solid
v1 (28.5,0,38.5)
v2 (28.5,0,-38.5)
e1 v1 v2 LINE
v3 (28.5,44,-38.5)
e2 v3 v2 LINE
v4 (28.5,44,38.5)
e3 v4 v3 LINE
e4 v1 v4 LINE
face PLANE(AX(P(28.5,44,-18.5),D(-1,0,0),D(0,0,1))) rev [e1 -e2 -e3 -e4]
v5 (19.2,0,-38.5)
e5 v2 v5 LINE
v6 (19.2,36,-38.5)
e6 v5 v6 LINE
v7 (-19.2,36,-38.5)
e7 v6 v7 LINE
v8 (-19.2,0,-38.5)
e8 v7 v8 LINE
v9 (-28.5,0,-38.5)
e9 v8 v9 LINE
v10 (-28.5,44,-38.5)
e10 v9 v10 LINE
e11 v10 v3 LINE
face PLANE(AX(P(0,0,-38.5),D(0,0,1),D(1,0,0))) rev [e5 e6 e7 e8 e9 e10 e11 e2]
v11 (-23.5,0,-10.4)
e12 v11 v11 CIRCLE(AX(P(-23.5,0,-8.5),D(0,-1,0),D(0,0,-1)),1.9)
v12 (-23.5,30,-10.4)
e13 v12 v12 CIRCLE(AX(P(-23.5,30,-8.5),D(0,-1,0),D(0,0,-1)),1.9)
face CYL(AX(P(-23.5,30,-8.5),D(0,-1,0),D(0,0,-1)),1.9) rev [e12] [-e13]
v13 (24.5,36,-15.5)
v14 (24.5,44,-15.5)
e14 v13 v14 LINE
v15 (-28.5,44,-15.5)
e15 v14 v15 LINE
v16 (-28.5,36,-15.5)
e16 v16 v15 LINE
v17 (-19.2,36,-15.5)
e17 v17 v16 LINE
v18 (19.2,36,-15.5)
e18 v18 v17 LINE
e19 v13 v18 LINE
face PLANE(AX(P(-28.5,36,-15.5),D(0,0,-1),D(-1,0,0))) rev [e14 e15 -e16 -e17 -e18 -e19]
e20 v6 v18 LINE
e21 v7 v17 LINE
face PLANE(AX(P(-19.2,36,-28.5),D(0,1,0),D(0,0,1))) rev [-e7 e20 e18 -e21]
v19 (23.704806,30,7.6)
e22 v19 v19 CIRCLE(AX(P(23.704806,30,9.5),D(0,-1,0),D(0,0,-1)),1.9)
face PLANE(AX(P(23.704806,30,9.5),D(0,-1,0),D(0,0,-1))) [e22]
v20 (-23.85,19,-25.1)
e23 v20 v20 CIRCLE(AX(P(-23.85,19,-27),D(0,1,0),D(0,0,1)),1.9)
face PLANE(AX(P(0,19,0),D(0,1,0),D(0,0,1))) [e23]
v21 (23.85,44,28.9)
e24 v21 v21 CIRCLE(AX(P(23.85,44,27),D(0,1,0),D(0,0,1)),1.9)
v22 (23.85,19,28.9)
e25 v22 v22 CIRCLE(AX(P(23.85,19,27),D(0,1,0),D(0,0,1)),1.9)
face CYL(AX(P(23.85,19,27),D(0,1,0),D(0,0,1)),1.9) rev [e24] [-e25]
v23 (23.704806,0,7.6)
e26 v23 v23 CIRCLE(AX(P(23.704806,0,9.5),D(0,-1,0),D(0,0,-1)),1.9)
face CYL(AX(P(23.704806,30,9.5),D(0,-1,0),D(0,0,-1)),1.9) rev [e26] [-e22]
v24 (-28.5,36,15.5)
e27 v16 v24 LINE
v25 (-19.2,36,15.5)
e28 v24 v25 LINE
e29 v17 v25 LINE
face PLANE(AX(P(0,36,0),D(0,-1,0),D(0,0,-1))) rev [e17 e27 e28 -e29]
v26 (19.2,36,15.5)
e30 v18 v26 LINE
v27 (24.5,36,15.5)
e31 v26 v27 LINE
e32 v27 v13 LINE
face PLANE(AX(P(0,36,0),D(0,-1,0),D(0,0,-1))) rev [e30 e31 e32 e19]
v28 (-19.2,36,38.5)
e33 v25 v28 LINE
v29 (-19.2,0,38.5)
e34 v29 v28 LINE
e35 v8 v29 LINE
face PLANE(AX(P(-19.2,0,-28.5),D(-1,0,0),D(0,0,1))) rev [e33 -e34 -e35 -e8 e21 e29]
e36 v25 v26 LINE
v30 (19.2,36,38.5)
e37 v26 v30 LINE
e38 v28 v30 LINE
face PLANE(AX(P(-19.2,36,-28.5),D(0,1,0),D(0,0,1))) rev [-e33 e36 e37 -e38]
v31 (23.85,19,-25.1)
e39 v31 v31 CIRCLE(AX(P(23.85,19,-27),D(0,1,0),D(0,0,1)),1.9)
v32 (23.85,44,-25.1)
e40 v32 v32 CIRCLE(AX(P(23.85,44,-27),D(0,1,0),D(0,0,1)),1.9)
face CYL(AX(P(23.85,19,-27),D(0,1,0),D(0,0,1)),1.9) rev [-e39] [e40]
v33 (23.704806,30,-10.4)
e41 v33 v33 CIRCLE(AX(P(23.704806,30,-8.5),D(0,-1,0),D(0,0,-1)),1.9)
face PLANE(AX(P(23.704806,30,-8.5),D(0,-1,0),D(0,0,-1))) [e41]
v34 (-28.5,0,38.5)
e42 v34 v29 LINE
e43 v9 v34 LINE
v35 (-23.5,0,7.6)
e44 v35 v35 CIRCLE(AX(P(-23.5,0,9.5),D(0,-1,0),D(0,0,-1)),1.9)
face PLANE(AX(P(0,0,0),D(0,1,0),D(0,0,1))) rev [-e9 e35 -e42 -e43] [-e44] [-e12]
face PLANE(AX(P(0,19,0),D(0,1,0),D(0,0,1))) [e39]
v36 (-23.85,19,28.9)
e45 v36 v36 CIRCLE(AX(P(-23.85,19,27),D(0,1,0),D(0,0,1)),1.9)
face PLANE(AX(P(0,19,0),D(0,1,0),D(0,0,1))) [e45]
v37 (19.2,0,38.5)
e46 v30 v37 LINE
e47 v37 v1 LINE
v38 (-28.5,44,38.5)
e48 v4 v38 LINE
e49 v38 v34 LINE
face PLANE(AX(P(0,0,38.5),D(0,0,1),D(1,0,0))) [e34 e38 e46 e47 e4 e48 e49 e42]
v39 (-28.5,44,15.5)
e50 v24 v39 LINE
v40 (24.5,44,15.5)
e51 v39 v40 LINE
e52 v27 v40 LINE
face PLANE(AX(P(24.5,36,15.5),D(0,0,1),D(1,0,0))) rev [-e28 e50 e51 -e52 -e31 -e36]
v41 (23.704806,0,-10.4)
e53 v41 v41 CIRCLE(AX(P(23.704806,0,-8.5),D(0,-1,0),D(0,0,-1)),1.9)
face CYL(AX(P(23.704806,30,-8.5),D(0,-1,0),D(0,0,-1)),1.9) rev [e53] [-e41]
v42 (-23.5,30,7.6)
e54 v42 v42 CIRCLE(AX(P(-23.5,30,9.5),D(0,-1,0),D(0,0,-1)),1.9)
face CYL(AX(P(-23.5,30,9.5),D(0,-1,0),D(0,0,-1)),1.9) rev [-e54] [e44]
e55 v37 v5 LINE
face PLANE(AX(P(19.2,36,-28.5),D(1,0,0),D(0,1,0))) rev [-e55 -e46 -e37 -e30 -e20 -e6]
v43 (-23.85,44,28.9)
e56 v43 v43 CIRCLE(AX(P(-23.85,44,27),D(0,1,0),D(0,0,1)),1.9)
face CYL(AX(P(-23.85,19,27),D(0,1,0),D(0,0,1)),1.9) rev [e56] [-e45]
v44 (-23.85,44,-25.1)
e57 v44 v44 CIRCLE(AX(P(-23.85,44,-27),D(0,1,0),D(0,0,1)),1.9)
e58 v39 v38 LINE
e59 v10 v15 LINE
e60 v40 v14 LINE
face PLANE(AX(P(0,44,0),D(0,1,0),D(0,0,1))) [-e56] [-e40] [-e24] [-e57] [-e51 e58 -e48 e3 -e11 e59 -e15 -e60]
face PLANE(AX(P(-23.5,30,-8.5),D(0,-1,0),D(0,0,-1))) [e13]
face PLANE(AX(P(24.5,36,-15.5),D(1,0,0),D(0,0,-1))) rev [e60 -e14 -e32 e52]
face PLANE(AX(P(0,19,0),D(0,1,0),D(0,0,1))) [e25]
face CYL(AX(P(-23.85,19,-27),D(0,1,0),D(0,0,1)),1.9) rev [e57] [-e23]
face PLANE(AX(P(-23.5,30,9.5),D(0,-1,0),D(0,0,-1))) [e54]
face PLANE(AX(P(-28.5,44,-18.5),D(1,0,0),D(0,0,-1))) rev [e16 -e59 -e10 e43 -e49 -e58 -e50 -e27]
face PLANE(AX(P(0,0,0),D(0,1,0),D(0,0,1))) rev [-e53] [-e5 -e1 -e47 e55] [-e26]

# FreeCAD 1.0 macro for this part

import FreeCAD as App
import Part
import Sketcher

V = App.Vector


def add_polygon(sketch, points):
    """Adds a closed chain of lines whose ends are joined by coincident constraints."""
    first, n = sketch.GeometryCount, len(points)
    for a, b in zip(points, points[1:] + points[:1]):
        sketch.addGeometry(Part.LineSegment(App.Vector(*a, 0), App.Vector(*b, 0)), False)
    for i in range(n):
        sketch.addConstraint(Sketcher.Constraint("Coincident", first + i, 2, first + (i + 1) % n, 1))

doc = App.newDocument("Part")
body = doc.addObject("PartDesign::Body", "Body")

# Sketch on XZ plane
sketch1 = doc.addObject("Sketcher::SketchObject", "Sketch")
body.addObject(sketch1)
sketch1.AttachmentSupport = (doc.XZ_Plane, [""])
sketch1.MapMode = "FlatFace"
add_polygon(sketch1, [(-28, -18), (-28, 18), (28, 18), (28, -18)])  # lines 0-3
sketch1.addConstraint(Sketcher.Constraint("Vertical", 0))
sketch1.addConstraint(Sketcher.Constraint("Horizontal", 1))
sketch1.addConstraint(Sketcher.Constraint("Vertical", 2))
sketch1.addConstraint(Sketcher.Constraint("Horizontal", 3))
sketch1.addConstraint(Sketcher.Constraint("Symmetric", 0, 2, 2, 2, -1, 1))
sketch1.addConstraint(Sketcher.Constraint("DistanceX", 1, 1, 1, 2, 57.0))
sketch1.addConstraint(Sketcher.Constraint("DistanceY", 0, 1, 0, 2, 37.0))
pad1 = doc.addObject("PartDesign::Pad", "Pad")
body.addObject(pad1)
pad1.Profile = sketch1
pad1.Length = 44
pad1.Reversed = True

# Sketch on XY plane
sketch2 = doc.addObject("Sketcher::SketchObject", "Sketch001")
body.addObject(sketch2)
sketch2.AttachmentSupport = (doc.XY_Plane, [""])
sketch2.MapMode = "FlatFace"
sketch2.AttachmentOffset = App.Placement(V(0, 0, 18.5), App.Rotation())
add_polygon(sketch2, [(-19, 36), (-19, 0), (19, 0), (19, 36)])  # lines 0-3
sketch2.addConstraint(Sketcher.Constraint("Vertical", 0))
sketch2.addConstraint(Sketcher.Constraint("Horizontal", 1))
sketch2.addConstraint(Sketcher.Constraint("Vertical", 2))
sketch2.addConstraint(Sketcher.Constraint("Horizontal", 3))
sketch2.addConstraint(Sketcher.Constraint("Symmetric", 0, 2, 1, 2, -1, 1))
sketch2.addConstraint(Sketcher.Constraint("DistanceY", 0, 2, 0, 1, 36.0))
sketch2.addConstraint(Sketcher.Constraint("DistanceX", 1, 1, 1, 2, 38.4))
pocket1 = doc.addObject("PartDesign::Pocket", "Pocket")
body.addObject(pocket1)
pocket1.Profile = sketch2
pocket1.Length = 47

# Sketch on XZ plane
sketch3 = doc.addObject("Sketcher::SketchObject", "Sketch002")
body.addObject(sketch3)
sketch3.AttachmentSupport = (doc.XZ_Plane, [""])
sketch3.MapMode = "FlatFace"
sketch3.addGeometry(Part.Circle(V(23.7, 9.5, 0), V(0, 0, 1), 1.9), False)
sketch3.addGeometry(Part.Circle(V(23.7, -8.5, 0), V(0, 0, 1), 1.9), False)
sketch3.addGeometry(Part.Circle(V(-23.5, 9.5, 0), V(0, 0, 1), 1.9), False)
sketch3.addGeometry(Part.Circle(V(-23.5, -8.5, 0), V(0, 0, 1), 1.9), False)
sketch3.addConstraint(Sketcher.Constraint("Equal", 0, 1))
sketch3.addConstraint(Sketcher.Constraint("Equal", 1, 2))
sketch3.addConstraint(Sketcher.Constraint("Equal", 2, 3))
sketch3.addConstraint(Sketcher.Constraint("Horizontal", 0, 3, 2, 3))
sketch3.addConstraint(Sketcher.Constraint("Horizontal", 1, 3, 3, 3))
sketch3.addConstraint(Sketcher.Constraint("Vertical", 0, 3, 1, 3))
sketch3.addConstraint(Sketcher.Constraint("Vertical", 2, 3, 3, 3))
sketch3.addConstraint(Sketcher.Constraint("Diameter", 0, 3.8))
sketch3.addConstraint(Sketcher.Constraint("DistanceY", 1, 3, 0, 3, 18.0))
sketch3.addConstraint(Sketcher.Constraint("DistanceY", -1, 1, 0, 3, 9.5))
sketch3.addConstraint(Sketcher.Constraint("DistanceX", 2, 3, -1, 1, 23.5))
sketch3.addConstraint(Sketcher.Constraint("DistanceX", -1, 1, 0, 3, 23.704806))
pocket2 = doc.addObject("PartDesign::Pocket", "Pocket001")
body.addObject(pocket2)
pocket2.Profile = sketch3
pocket2.Length = 30

# Sketch on XY plane
sketch4 = doc.addObject("Sketcher::SketchObject", "Sketch003")
body.addObject(sketch4)
sketch4.AttachmentSupport = (doc.XY_Plane, [""])
sketch4.MapMode = "FlatFace"
sketch4.AttachmentOffset = App.Placement(V(0, 0, -18.5), App.Rotation())
add_polygon(sketch4, [(19, 36), (-19, 36), (-19, 0), (-28, 0), (-28, 44), (28, 44), (28, 0), (19, 0)])  # lines 0-7
sketch4.addConstraint(Sketcher.Constraint("Horizontal", 0))
sketch4.addConstraint(Sketcher.Constraint("Vertical", 1))
sketch4.addConstraint(Sketcher.Constraint("Horizontal", 2))
sketch4.addConstraint(Sketcher.Constraint("Vertical", 3))
sketch4.addConstraint(Sketcher.Constraint("Horizontal", 4))
sketch4.addConstraint(Sketcher.Constraint("Vertical", 5))
sketch4.addConstraint(Sketcher.Constraint("Horizontal", 6))
sketch4.addConstraint(Sketcher.Constraint("Vertical", 7))
sketch4.addConstraint(Sketcher.Constraint("Symmetric", 2, 2, 5, 2, -1, 1))
sketch4.addConstraint(Sketcher.Constraint("Symmetric", 1, 2, 6, 2, -2))
sketch4.addConstraint(Sketcher.Constraint("DistanceX", 4, 1, 4, 2, 57.0))
sketch4.addConstraint(Sketcher.Constraint("DistanceY", 1, 2, 1, 1, 36.0))
sketch4.addConstraint(Sketcher.Constraint("DistanceY", 3, 1, 3, 2, 44.0))
sketch4.addConstraint(Sketcher.Constraint("DistanceX", 0, 2, 0, 1, 38.4))
pad2 = doc.addObject("PartDesign::Pad", "Pad001")
body.addObject(pad2)
pad2.Profile = sketch4
pad2.Length = 20
pad2.Reversed = True

# Sketch on XY plane
sketch5 = doc.addObject("Sketcher::SketchObject", "Sketch004")
body.addObject(sketch5)
sketch5.AttachmentSupport = (doc.XY_Plane, [""])
sketch5.MapMode = "FlatFace"
sketch5.AttachmentOffset = App.Placement(V(0, 0, 18.5), App.Rotation())
add_polygon(sketch5, [(-28, 0), (-19, 0), (-19, 36), (19, 36), (19, 0), (28, 0), (28, 44), (-28, 44)])  # lines 0-7
sketch5.addConstraint(Sketcher.Constraint("Horizontal", 0))
sketch5.addConstraint(Sketcher.Constraint("Vertical", 1))
sketch5.addConstraint(Sketcher.Constraint("Horizontal", 2))
sketch5.addConstraint(Sketcher.Constraint("Vertical", 3))
sketch5.addConstraint(Sketcher.Constraint("Horizontal", 4))
sketch5.addConstraint(Sketcher.Constraint("Vertical", 5))
sketch5.addConstraint(Sketcher.Constraint("Horizontal", 6))
sketch5.addConstraint(Sketcher.Constraint("Vertical", 7))
sketch5.addConstraint(Sketcher.Constraint("Symmetric", 0, 2, 3, 2, -1, 1))
sketch5.addConstraint(Sketcher.Constraint("Symmetric", 4, 2, 7, 2, -2))
sketch5.addConstraint(Sketcher.Constraint("DistanceX", 6, 2, 6, 1, 57.0))
sketch5.addConstraint(Sketcher.Constraint("DistanceY", 1, 1, 1, 2, 36.0))
sketch5.addConstraint(Sketcher.Constraint("DistanceY", 5, 1, 5, 2, 44.0))
sketch5.addConstraint(Sketcher.Constraint("DistanceX", 0, 1, 0, 2, 9.3))
pad3 = doc.addObject("PartDesign::Pad", "Pad002")
body.addObject(pad3)
pad3.Profile = sketch5
pad3.Length = 20

# Sketch on XZ plane
sketch6 = doc.addObject("Sketcher::SketchObject", "Sketch005")
body.addObject(sketch6)
sketch6.AttachmentSupport = (doc.XZ_Plane, [""])
sketch6.MapMode = "FlatFace"
sketch6.AttachmentOffset = App.Placement(V(0, 0, -44), App.Rotation())
add_polygon(sketch6, [(-28, -16), (-28, 16), (24, 16), (24, -16)])  # lines 0-3
sketch6.addConstraint(Sketcher.Constraint("Vertical", 0))
sketch6.addConstraint(Sketcher.Constraint("Horizontal", 1))
sketch6.addConstraint(Sketcher.Constraint("Vertical", 2))
sketch6.addConstraint(Sketcher.Constraint("Horizontal", 3))
sketch6.addConstraint(Sketcher.Constraint("DistanceX", 1, 1, 1, 2, 53.0))
sketch6.addConstraint(Sketcher.Constraint("DistanceY", 0, 1, 0, 2, 31.0))
sketch6.addConstraint(Sketcher.Constraint("DistanceX", 0, 2, -1, 1, 28.5))
sketch6.addConstraint(Sketcher.Constraint("DistanceY", -1, 1, 0, 2, 15.5))
pocket3 = doc.addObject("PartDesign::Pocket", "Pocket002")
body.addObject(pocket3)
pocket3.Profile = sketch6
pocket3.Length = 8
pocket3.Reversed = True

# Sketch on XZ plane
sketch7 = doc.addObject("Sketcher::SketchObject", "Sketch006")
body.addObject(sketch7)
sketch7.AttachmentSupport = (doc.XZ_Plane, [""])
sketch7.MapMode = "FlatFace"
sketch7.AttachmentOffset = App.Placement(V(0, 0, -44), App.Rotation())
sketch7.addGeometry(Part.Circle(V(23.9, 27, 0), V(0, 0, 1), 1.9), False)
sketch7.addGeometry(Part.Circle(V(-23.9, 27, 0), V(0, 0, 1), 1.9), False)
sketch7.addGeometry(Part.Circle(V(-23.9, -27, 0), V(0, 0, 1), 1.9), False)
sketch7.addGeometry(Part.Circle(V(23.9, -27, 0), V(0, 0, 1), 1.9), False)
sketch7.addConstraint(Sketcher.Constraint("Equal", 0, 1))
sketch7.addConstraint(Sketcher.Constraint("Equal", 1, 2))
sketch7.addConstraint(Sketcher.Constraint("Equal", 2, 3))
sketch7.addConstraint(Sketcher.Constraint("Symmetric", 0, 3, 2, 3, -1, 1))
sketch7.addConstraint(Sketcher.Constraint("Symmetric", 1, 3, 3, 3, -1, 1))
sketch7.addConstraint(Sketcher.Constraint("Symmetric", 0, 3, 1, 3, -2))
sketch7.addConstraint(Sketcher.Constraint("Diameter", 0, 3.8))
sketch7.addConstraint(Sketcher.Constraint("DistanceY", -1, 1, 0, 3, 27.0))
sketch7.addConstraint(Sketcher.Constraint("DistanceX", 1, 3, 0, 3, 47.7))
pocket4 = doc.addObject("PartDesign::Pocket", "Pocket003")
body.addObject(pocket4)
pocket4.Profile = sketch7
pocket4.Length = 25
pocket4.Reversed = True

doc.recompute()
